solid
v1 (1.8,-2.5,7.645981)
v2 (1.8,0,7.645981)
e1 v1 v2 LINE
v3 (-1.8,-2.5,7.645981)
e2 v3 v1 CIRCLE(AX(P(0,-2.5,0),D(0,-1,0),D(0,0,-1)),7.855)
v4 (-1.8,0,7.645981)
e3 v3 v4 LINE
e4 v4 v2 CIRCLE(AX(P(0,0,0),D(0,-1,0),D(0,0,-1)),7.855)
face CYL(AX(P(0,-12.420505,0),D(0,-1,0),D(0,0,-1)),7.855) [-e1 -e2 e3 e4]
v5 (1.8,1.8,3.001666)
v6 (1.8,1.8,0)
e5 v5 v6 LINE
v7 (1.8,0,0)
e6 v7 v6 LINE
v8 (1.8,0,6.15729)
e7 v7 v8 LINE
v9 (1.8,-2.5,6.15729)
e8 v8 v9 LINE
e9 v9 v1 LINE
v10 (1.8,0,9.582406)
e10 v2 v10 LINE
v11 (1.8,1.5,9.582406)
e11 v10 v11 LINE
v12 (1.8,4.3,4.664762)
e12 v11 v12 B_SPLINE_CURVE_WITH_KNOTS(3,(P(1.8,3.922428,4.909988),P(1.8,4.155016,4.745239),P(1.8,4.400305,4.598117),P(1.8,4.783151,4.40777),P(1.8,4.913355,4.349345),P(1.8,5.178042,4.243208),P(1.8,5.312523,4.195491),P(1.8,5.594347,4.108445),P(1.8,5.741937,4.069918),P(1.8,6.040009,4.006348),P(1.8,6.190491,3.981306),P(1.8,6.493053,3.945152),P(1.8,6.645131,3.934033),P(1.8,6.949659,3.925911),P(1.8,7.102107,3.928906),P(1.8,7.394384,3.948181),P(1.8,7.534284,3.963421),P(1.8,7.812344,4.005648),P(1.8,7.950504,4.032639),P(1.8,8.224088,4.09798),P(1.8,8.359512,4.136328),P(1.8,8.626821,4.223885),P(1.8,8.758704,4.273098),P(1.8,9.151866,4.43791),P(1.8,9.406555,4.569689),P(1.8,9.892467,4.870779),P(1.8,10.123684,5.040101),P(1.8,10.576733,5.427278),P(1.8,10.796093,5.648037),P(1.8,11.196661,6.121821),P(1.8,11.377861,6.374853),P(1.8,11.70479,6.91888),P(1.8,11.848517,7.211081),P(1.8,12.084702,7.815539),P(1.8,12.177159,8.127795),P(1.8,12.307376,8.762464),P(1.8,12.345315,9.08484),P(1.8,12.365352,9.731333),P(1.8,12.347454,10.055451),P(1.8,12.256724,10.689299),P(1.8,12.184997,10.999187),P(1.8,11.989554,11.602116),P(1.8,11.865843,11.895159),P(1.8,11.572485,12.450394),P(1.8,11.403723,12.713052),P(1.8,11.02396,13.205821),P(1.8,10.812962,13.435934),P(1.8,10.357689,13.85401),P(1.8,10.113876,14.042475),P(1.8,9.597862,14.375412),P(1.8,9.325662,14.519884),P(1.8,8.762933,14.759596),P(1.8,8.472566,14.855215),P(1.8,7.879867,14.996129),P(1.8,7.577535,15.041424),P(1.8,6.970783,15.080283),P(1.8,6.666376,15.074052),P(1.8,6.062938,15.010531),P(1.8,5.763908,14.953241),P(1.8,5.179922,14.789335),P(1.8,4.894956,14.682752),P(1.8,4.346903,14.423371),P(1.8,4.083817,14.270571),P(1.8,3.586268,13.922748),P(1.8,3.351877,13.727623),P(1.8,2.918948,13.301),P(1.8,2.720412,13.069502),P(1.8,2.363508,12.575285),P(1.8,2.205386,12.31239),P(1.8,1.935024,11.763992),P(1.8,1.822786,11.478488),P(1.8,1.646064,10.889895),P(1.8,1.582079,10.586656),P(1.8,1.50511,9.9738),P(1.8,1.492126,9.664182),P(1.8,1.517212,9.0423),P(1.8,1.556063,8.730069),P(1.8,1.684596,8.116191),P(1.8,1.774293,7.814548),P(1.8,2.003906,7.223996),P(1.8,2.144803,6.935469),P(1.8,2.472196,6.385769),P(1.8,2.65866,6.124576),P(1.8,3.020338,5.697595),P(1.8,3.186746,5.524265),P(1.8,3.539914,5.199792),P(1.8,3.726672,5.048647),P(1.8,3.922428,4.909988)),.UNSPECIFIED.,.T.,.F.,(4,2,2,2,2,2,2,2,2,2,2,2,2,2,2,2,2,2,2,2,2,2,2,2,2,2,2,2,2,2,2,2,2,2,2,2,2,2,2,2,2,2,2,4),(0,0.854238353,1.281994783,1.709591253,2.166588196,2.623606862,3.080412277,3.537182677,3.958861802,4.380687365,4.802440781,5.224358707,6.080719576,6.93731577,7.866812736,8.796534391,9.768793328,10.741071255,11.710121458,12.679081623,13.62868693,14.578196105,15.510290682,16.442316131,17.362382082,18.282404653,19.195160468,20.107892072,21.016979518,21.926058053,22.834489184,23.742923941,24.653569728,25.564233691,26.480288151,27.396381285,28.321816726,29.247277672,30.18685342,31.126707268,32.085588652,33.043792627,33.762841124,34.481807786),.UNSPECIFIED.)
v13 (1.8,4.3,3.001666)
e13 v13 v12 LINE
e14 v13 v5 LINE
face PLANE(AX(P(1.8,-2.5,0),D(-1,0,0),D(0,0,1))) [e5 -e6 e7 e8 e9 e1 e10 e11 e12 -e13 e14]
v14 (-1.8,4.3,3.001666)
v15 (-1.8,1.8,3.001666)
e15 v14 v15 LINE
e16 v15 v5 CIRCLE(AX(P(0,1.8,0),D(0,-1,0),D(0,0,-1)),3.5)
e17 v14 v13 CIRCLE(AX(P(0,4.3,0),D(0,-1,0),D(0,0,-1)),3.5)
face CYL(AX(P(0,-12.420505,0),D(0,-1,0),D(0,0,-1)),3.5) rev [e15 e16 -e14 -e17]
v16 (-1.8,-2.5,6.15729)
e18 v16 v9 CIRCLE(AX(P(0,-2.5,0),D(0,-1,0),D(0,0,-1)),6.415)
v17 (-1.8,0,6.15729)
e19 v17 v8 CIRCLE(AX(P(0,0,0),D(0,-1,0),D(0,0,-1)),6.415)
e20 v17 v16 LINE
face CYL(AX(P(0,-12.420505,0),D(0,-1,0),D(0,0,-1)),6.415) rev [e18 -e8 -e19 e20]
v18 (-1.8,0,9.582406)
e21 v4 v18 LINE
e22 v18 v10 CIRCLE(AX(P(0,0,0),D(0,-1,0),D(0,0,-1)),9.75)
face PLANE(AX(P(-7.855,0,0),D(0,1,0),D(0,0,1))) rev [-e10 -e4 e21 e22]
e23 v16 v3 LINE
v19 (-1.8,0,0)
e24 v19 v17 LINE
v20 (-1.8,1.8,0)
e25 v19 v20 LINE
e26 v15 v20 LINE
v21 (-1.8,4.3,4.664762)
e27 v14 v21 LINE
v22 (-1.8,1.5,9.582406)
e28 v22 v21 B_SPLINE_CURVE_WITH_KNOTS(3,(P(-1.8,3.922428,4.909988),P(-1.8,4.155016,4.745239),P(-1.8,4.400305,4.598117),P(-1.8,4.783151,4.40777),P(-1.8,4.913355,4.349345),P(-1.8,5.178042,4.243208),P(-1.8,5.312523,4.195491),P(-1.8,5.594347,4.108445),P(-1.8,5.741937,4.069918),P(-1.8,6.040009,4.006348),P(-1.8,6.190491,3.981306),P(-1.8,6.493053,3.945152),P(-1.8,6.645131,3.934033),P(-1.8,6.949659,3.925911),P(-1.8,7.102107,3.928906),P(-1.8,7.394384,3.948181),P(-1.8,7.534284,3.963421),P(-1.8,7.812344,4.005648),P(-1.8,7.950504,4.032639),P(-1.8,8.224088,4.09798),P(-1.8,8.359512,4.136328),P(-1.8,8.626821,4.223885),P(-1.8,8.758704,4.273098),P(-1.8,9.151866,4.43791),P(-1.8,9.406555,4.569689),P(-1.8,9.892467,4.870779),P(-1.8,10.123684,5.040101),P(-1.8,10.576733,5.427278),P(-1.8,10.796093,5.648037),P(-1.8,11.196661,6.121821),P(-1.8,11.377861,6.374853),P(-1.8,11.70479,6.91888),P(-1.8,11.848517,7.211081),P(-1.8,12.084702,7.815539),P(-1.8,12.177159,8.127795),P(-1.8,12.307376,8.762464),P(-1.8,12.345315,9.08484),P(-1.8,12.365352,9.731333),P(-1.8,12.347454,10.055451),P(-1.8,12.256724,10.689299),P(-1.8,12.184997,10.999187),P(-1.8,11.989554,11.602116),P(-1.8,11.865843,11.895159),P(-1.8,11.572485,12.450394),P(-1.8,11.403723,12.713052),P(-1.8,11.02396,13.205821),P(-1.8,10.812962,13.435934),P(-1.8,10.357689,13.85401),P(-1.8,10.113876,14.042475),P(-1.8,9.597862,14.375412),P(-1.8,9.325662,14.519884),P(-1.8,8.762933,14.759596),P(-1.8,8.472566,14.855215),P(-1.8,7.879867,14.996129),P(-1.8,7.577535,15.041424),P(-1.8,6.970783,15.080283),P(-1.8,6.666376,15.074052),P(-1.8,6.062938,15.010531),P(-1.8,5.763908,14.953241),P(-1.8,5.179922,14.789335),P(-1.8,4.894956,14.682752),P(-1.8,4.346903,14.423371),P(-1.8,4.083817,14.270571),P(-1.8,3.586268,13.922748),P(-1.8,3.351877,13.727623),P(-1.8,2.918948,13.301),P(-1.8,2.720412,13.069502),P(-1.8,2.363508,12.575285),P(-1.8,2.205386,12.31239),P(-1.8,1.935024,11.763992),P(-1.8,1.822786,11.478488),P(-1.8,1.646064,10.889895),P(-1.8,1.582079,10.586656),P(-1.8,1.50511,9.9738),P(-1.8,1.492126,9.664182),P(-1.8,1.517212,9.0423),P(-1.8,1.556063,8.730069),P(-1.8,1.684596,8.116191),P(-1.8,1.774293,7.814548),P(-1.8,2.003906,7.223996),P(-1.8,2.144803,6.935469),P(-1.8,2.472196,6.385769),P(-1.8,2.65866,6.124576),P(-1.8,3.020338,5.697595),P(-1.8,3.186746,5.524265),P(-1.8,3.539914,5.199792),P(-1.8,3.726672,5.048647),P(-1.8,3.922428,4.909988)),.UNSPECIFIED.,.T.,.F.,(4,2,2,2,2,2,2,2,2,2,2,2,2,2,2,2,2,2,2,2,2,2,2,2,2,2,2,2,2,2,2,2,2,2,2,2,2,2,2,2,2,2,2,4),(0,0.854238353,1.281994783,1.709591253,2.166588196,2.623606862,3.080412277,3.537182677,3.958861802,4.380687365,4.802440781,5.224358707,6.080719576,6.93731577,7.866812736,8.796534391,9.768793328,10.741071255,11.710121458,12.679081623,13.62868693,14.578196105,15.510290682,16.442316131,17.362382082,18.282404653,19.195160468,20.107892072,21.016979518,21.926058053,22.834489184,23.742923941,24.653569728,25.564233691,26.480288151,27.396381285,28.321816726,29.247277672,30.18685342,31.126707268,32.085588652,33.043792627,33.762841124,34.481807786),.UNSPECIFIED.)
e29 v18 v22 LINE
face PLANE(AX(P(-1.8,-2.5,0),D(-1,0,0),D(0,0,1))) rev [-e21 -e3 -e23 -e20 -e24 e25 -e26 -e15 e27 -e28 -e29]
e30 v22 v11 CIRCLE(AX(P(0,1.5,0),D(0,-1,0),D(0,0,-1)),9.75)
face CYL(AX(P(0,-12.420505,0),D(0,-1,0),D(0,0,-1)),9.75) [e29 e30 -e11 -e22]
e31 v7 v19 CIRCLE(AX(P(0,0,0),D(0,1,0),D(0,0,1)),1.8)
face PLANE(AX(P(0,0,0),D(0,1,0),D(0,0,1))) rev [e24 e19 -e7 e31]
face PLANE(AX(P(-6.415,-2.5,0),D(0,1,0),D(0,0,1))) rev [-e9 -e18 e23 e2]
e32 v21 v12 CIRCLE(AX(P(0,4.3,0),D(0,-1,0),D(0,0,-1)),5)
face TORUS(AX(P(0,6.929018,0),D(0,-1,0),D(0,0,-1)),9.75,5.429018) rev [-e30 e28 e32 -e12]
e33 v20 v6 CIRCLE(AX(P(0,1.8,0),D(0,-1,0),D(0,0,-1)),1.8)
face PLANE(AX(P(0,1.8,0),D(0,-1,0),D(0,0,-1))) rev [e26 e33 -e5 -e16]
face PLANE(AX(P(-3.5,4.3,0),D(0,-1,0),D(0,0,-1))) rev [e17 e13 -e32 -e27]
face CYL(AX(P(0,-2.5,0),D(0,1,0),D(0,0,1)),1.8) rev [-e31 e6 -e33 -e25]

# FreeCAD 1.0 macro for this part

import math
import FreeCAD as App
import Part
import Sketcher

V = App.Vector

doc = App.newDocument("Part")
body = doc.addObject("PartDesign::Body", "Body")

sketch1 = body.newObject("Sketcher::SketchObject", "Sketch")
sketch1.AttachmentSupport = (doc.getObject("XY_Plane"), [""])
sketch1.MapMode = "FlatFace"
sketch1.addGeometry([
    Part.LineSegment(V(-6.4, 0, 0), V(0, 0, 0)),
    Part.LineSegment(V(0, 0, 0), V(0, 1.8, 0)),
    Part.LineSegment(V(0, 1.8, 0), V(-3.5, 1.8, 0)),
    Part.LineSegment(V(-3.5, 1.8, 0), V(-3.5, 4.3, 0)),
    Part.LineSegment(V(-3.5, 4.3, 0), V(-5, 4.3, 0)),
    Part.ArcOfCircle(Part.Circle(V(-9.8, 6.9, 0), V(0, 0, 1), 5.4), math.radians(-90), math.radians(-29)),
    Part.LineSegment(V(-9.8, 1.5, 0), V(-9.8, 0, 0)),
    Part.LineSegment(V(-9.8, 0, 0), V(-7.9, 0, 0)),
    Part.LineSegment(V(-7.9, 0, 0), V(-7.9, -2.5, 0)),
    Part.LineSegment(V(-7.9, -2.5, 0), V(-6.4, -2.5, 0)),
    Part.LineSegment(V(-6.4, -2.5, 0), V(-6.4, 0, 0)),
], False)
sketch1.addConstraint([
    Sketcher.Constraint("Coincident", 0, 2, 1, 1),
    Sketcher.Constraint("Coincident", 1, 2, 2, 1),
    Sketcher.Constraint("Coincident", 2, 2, 3, 1),
    Sketcher.Constraint("Coincident", 3, 2, 4, 1),
    Sketcher.Constraint("Coincident", 4, 2, 5, 2),
    Sketcher.Constraint("Coincident", 5, 1, 6, 1),
    Sketcher.Constraint("Coincident", 6, 2, 7, 1),
    Sketcher.Constraint("Coincident", 7, 2, 8, 1),
    Sketcher.Constraint("Coincident", 8, 2, 9, 1),
    Sketcher.Constraint("Coincident", 9, 2, 10, 1),
    Sketcher.Constraint("Coincident", 10, 2, 0, 1),
    Sketcher.Constraint("Horizontal", 0),
    Sketcher.Constraint("Vertical", 1),
    Sketcher.Constraint("Horizontal", 2),
    Sketcher.Constraint("Vertical", 3),
    Sketcher.Constraint("Horizontal", 4),
    Sketcher.Constraint("Vertical", 6),
    Sketcher.Constraint("Horizontal", 7),
    Sketcher.Constraint("Vertical", 8),
    Sketcher.Constraint("Horizontal", 9),
    Sketcher.Constraint("Vertical", 10),
    Sketcher.Constraint("Coincident", 0, 2, -1, 1),
    Sketcher.Constraint("PointOnObject", 6, 2, -1),
    Sketcher.Constraint("Equal", 4, 6),
    Sketcher.Constraint("Equal", 3, 8),
    Sketcher.Constraint("DistanceX", 2, 2, 2, 1, 3.5),
    Sketcher.Constraint("DistanceX", 4, 2, 4, 1, 1.5),
    Sketcher.Constraint("DistanceY", 1, 1, 1, 2, 1.8),
    Sketcher.Constraint("DistanceY", 3, 1, 3, 2, 2.5),
    Sketcher.Constraint("DistanceX", 9, 1, 9, 2, 1.44),
    Sketcher.Constraint("DistanceX", 0, 1, 0, 2, 6.415),
    Sketcher.Constraint("DistanceX", 7, 1, 7, 2, 1.895),
    Sketcher.Constraint("DistanceX", 5, 3, -1, 1, 9.75),
])
revolution = body.newObject("PartDesign::Revolution", "Revolution")
revolution.Profile = sketch1
revolution.ReferenceAxis = (sketch1, ["V_Axis"])
revolution.Angle = 360

sketch2 = body.newObject("Sketcher::SketchObject", "Sketch001")
sketch2.AttachmentSupport = (doc.getObject("XZ_Plane"), [""])
sketch2.MapMode = "FlatFace"
sketch2.AttachmentOffset = App.Placement(V(0, 0, -4.3), App.Rotation())
sketch2.addGeometry([
    Part.LineSegment(V(1.8, 9.6, 0), V(1.8, 0, 0)),
    Part.ArcOfCircle(Part.Circle(V(0, 0, 0), V(0, 0, 1), 1.8), math.radians(180), math.radians(360)),
    Part.LineSegment(V(-1.8, 0, 0), V(-1.8, 9.6, 0)),
    Part.ArcOfCircle(Part.Circle(V(0, 0, 0), V(0, 0, 1), 9.7), math.radians(79), math.radians(101)),
], False)
sketch2.addConstraint([
    Sketcher.Constraint("Tangent", 0, 2, 1, 2),
    Sketcher.Constraint("Tangent", 1, 1, 2, 1),
    Sketcher.Constraint("Coincident", 2, 2, 3, 2),
    Sketcher.Constraint("Coincident", 3, 1, 0, 1),
    Sketcher.Constraint("Vertical", 0),
    Sketcher.Constraint("Vertical", 2),
    Sketcher.Constraint("Coincident", 1, 3, -1, 1),
    Sketcher.Constraint("Coincident", 3, 3, -1, 1),
    Sketcher.Constraint("Radius", 1, 1.8),
    Sketcher.Constraint("Radius", 3, 9.75),
])
pocket1 = body.newObject("PartDesign::Pocket", "Pocket")
pocket1.Profile = sketch2
pocket1.Type = "ThroughAll"
pocket1.Reversed = True

doc.recompute()
